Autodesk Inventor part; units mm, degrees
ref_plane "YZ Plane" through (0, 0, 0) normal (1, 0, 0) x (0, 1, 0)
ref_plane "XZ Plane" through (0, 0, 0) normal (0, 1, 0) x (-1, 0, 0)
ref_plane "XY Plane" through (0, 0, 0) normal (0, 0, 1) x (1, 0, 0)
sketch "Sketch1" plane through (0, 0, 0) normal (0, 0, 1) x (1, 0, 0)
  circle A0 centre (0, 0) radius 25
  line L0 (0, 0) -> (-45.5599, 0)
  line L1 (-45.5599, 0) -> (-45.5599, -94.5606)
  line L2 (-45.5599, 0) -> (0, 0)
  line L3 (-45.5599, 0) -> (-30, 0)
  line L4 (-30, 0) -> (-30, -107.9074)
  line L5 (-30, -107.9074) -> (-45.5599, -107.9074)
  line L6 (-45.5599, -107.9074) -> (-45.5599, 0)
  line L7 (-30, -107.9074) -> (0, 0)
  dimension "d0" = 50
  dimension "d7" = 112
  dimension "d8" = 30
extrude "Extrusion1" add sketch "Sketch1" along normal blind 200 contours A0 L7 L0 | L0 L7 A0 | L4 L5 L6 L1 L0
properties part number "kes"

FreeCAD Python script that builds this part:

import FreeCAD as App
import Part
import Sketcher
from FreeCAD import Vector
Q = App.Units.Quantity


def add_polygon(sketch, points):
    """Adds a closed chain of lines whose ends are joined by coincident constraints."""
    first, n = sketch.GeometryCount, len(points)
    for a, b in zip(points, points[1:] + points[:1]):
        sketch.addGeometry(Part.LineSegment(App.Vector(*a, 0), App.Vector(*b, 0)), False)
    for i in range(n):
        sketch.addConstraint(Sketcher.Constraint("Coincident", first + i, 2, first + (i + 1) % n, 1))

doc = App.newDocument("Part")
body = doc.addObject("PartDesign::Body", "Body")
body.AllowCompound = True

# Sketch on XY plane
sketch1 = body.newObject("Sketcher::SketchObject", "Sketch")
sketch1.AttachmentSupport = (doc.getObject("XY_Plane"), [""])
sketch1.MapMode = "FlatFace"
sketch1.addGeometry(Part.Circle(Vector(0, 0, 0), Vector(0, 0, 1), 25), False)  # 0
add_polygon(sketch1, [(-30, -108), (-30, 0), (-46, 0), (-46, -108)])  # lines 1-4
sketch1.addConstraint([
    Sketcher.Constraint("Vertical", 1),
    Sketcher.Constraint("Horizontal", 2),
    Sketcher.Constraint("Vertical", 3),
    Sketcher.Constraint("Horizontal", 4),
    Sketcher.Constraint("Coincident", 0, 3, -1, 1),
    Sketcher.Constraint("PointOnObject", 1, 2, -1),
    Sketcher.Constraint("Diameter", 0, Q("50 mm")),
    Sketcher.Constraint("DistanceX", 1, 2, -1, 1, Q("30 mm")),
    Sketcher.Constraint("DistanceX", 2, 2, 2, 1, Q("15.56 mm")),
    Sketcher.Constraint("DistanceY", 1, 1, 1, 2, Q("107.9074 mm")),
])
pad1 = body.newObject("PartDesign::Pad", "Pad")
pad1.Profile = sketch1
pad1.Length = 200

doc.recompute()
